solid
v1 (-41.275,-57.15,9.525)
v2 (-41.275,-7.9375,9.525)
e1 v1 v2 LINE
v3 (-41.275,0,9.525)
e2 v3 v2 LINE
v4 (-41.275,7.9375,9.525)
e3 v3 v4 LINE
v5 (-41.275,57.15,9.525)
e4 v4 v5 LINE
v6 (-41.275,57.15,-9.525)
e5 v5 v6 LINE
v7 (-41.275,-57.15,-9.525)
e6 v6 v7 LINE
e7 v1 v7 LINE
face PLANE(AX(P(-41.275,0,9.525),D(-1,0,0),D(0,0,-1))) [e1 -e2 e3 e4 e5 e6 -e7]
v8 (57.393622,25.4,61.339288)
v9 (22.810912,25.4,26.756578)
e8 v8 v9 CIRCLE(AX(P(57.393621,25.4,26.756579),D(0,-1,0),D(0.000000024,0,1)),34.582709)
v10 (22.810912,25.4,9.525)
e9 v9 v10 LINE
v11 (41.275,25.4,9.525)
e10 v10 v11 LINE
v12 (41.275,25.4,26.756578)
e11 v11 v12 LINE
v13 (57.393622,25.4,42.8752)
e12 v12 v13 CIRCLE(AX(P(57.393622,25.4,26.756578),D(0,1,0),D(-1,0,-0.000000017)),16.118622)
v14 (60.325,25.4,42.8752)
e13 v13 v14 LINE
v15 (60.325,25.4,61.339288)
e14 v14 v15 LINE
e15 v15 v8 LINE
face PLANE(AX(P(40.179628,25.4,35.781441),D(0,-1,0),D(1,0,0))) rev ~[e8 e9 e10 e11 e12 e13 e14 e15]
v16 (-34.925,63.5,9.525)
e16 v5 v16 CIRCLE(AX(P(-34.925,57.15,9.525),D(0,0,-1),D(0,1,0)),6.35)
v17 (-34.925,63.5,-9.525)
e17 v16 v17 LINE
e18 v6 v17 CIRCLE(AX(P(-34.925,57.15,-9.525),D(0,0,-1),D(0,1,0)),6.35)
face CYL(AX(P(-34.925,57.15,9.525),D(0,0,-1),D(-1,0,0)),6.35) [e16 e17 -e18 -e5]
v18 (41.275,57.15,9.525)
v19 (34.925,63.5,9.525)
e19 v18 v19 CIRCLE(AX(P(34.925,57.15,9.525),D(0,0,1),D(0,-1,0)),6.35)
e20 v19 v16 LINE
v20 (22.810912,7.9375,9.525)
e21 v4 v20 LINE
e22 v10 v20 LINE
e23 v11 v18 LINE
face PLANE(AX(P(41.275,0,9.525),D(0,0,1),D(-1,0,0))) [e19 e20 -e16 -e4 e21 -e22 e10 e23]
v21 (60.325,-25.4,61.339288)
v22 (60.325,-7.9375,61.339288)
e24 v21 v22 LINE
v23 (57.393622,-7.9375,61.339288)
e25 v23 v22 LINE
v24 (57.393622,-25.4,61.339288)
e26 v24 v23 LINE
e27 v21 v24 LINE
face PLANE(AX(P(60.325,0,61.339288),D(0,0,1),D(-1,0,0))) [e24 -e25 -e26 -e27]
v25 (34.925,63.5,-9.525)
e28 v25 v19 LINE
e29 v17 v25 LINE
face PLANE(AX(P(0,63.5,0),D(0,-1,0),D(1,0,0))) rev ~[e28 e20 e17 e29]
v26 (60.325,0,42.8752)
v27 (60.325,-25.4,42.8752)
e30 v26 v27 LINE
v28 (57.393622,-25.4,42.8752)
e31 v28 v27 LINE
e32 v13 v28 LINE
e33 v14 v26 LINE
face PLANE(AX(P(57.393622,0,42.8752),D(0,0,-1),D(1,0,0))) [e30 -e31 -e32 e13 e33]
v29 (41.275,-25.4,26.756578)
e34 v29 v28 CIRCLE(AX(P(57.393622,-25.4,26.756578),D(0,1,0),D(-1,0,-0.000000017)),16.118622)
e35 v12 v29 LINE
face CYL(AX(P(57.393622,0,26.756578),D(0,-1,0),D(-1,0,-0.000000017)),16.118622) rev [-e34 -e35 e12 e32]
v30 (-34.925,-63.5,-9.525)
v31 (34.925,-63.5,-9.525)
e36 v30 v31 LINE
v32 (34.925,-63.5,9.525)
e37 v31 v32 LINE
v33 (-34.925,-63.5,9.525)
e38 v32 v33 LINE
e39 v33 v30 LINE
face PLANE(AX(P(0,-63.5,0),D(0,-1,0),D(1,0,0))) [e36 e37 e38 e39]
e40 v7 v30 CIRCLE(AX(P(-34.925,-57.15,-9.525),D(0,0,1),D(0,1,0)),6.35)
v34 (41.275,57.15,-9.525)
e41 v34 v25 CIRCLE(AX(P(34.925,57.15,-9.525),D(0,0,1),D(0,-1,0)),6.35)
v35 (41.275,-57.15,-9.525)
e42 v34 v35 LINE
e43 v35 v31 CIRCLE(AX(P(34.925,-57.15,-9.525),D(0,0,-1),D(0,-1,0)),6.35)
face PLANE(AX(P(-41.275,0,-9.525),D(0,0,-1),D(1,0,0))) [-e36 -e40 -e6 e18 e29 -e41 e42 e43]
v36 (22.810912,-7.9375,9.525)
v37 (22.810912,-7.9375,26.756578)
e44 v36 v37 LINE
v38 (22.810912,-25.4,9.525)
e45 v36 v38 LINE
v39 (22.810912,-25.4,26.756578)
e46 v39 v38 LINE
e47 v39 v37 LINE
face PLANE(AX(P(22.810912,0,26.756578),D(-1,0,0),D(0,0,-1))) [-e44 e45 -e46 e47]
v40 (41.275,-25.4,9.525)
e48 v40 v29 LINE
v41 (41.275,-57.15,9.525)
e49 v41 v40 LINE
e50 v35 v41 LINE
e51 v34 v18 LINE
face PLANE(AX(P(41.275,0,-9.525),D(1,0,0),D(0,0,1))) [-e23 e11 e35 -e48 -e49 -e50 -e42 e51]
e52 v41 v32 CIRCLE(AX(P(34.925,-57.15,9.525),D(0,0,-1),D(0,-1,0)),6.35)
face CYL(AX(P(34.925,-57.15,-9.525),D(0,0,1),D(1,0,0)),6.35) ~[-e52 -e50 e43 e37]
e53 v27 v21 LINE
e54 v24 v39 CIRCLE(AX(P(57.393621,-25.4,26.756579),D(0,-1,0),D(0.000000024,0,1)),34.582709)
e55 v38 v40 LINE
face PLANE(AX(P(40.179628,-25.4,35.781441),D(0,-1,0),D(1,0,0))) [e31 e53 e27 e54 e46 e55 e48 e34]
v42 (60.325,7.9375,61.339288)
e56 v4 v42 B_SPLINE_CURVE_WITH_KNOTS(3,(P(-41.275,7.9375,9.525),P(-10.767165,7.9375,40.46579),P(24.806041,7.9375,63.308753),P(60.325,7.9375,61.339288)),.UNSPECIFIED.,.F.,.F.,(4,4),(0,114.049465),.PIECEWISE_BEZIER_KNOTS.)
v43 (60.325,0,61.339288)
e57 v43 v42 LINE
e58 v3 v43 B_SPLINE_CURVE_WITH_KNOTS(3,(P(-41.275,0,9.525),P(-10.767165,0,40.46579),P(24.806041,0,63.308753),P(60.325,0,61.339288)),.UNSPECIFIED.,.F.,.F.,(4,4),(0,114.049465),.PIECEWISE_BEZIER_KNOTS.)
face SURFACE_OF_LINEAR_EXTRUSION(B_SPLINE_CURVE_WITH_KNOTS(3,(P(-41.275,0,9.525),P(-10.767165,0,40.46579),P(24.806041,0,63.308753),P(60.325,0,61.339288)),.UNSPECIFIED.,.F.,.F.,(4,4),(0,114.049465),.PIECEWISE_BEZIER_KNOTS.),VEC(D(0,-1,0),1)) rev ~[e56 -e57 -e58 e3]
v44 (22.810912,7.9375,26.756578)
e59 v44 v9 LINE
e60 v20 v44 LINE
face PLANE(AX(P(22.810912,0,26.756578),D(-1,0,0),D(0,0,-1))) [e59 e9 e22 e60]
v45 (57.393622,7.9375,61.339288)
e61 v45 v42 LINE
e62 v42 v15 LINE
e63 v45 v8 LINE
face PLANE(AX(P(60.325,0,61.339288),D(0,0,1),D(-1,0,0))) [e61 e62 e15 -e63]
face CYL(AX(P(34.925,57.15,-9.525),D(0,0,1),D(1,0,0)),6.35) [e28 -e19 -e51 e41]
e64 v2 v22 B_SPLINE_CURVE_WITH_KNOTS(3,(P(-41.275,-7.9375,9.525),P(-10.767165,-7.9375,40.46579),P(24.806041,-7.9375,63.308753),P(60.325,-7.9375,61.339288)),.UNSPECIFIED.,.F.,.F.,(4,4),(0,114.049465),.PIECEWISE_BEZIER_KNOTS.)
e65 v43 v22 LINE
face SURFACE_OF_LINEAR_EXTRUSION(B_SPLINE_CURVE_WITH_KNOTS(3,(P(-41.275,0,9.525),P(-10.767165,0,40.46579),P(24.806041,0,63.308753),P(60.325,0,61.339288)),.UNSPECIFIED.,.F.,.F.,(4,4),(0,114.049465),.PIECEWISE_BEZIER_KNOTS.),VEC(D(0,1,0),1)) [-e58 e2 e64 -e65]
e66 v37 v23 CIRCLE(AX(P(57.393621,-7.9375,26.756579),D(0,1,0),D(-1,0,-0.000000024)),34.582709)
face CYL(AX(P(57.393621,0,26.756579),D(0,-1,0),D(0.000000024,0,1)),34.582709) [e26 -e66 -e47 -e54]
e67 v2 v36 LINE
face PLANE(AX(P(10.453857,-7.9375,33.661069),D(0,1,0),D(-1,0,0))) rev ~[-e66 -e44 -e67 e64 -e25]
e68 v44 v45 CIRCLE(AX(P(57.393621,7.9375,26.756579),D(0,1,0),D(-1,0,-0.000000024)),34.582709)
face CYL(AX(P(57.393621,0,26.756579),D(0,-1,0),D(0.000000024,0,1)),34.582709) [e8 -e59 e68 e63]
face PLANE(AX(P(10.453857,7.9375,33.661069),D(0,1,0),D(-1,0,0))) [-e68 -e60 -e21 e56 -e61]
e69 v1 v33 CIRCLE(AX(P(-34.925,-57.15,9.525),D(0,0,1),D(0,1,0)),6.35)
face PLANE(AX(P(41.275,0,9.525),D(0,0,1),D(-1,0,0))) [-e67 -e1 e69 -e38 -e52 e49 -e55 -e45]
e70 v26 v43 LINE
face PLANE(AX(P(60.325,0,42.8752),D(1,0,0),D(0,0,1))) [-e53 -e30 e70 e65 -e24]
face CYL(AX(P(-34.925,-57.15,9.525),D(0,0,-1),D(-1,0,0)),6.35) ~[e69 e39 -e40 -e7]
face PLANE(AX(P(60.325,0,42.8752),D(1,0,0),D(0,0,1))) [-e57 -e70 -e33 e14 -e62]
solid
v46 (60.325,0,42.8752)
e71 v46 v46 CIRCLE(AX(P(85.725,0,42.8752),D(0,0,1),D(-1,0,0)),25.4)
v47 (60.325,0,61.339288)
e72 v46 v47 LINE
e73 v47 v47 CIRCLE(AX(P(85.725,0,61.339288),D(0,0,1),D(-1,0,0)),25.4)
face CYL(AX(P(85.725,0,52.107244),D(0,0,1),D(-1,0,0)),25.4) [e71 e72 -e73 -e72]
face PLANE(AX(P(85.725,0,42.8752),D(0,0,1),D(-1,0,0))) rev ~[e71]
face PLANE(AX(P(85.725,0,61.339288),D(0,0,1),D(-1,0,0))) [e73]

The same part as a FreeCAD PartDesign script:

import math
import FreeCAD as App
import Part
import Sketcher
from FreeCAD import Vector
Q = App.Units.Quantity


def edges_at(feature, points):
    """Names of the edges that pass closest to the given points."""
    edges = feature.Shape.Edges
    near = lambda p: min(range(len(edges)), key=lambda i: edges[i].distToShape(Part.Vertex(*p))[0])
    return sorted({f"Edge{near(p) + 1}" for p in points})

doc = App.newDocument("Part")
params = doc.addObject("Spreadsheet::Sheet", "Params")
for row, (alias, value) in enumerate([
    ("sketch1_width", "3.25 in"),
    ("sketch1_height", "0.75 in"),
    ("pad1_length", "5 in"),
    ("pad2_length", "2 in"),
    ("pad3_length", "0.625 in"),
    ("sketch4_width", "1 in"),
    ("revolution_angle", "360 deg"),
    ("fillet_radius", "0.25 in"),
], start=1):
    params.set(f"A{row}", alias)
    params.set(f"B{row}", "=" + value)
    params.setAlias(f"B{row}", alias)

body = doc.addObject("PartDesign::Body", "Body")
body.AllowCompound = True

# Sketch on XZ plane
sketch1 = doc.addObject("Sketcher::SketchObject", "Sketch")
body.addObject(sketch1)
sketch1.AttachmentSupport = (doc.XZ_Plane, [""])
sketch1.MapMode = "FlatFace"
sketch1.addGeometry([
    Part.LineSegment(Vector(-41, 10, 0), Vector(-41, -10, 0)),
    Part.LineSegment(Vector(-41, -10, 0), Vector(41, -10, 0)),
    Part.LineSegment(Vector(41, -10, 0), Vector(41, 10, 0)),
    Part.LineSegment(Vector(41, 10, 0), Vector(-41, 10, 0)),
], False)
sketch1.addConstraint([
    Sketcher.Constraint("Coincident", 0, 2, 1, 1),
    Sketcher.Constraint("Coincident", 1, 2, 2, 1),
    Sketcher.Constraint("Coincident", 2, 2, 3, 1),
    Sketcher.Constraint("Coincident", 3, 2, 0, 1),
    Sketcher.Constraint("Vertical", 0),
    Sketcher.Constraint("Horizontal", 1),
    Sketcher.Constraint("Vertical", 2),
    Sketcher.Constraint("Horizontal", 3),
    Sketcher.Constraint("Symmetric", 0, 2, 2, 2, -1, 1),
    Sketcher.Constraint("DistanceX", 1, 1, 1, 2, Q("3.25 in")),
    Sketcher.Constraint("DistanceY", 0, 2, 0, 1, Q("0.75 in")),
])
sketch1.setExpression("Constraints[9]", "Params.sketch1_width")
sketch1.setExpression("Constraints[10]", "Params.sketch1_height")
pad1 = doc.addObject("PartDesign::Pad", "Pad")
body.addObject(pad1)
pad1.Profile = sketch1
pad1.setExpression("Length", "Params.pad1_length")
pad1.Midplane = True

# Sketch on XZ plane
sketch2 = doc.addObject("Sketcher::SketchObject", "Sketch001")
body.addObject(sketch2)
sketch2.AttachmentSupport = (doc.XZ_Plane, [""])
sketch2.MapMode = "FlatFace"
sketch2.addGeometry([
    Part.LineSegment(Vector(22.8, 26.8, 0), Vector(22.8, 9.5, 0)),  # 0
    Part.LineSegment(Vector(22.8, 9.5, 0), Vector(41.3, 9.5, 0)),  # 1
    Part.LineSegment(Vector(41.3, 9.5, 0), Vector(41.3, 26.8, 0)),  # 2
    Part.ArcOfCircle(Part.Circle(Vector(57.4, 26.8, 0), Vector(0, 0, 1), 16.1), math.radians(90), math.radians(180)),  # 3
    Part.LineSegment(Vector(57.4, 42.9, 0), Vector(60.3, 42.9, 0)),  # 4
    Part.LineSegment(Vector(60.3, 42.9, 0), Vector(60.3, 61.3, 0)),  # 5
    Part.LineSegment(Vector(60.3, 61.3, 0), Vector(57.4, 61.3, 0)),  # 6
    Part.ArcOfCircle(Part.Circle(Vector(57.4, 26.8, 0), Vector(0, 0, 1), 34.6), math.radians(90), math.radians(180)),  # 7
], False)
sketch2.addConstraint([
    Sketcher.Constraint("Coincident", 0, 2, 1, 1),
    Sketcher.Constraint("Coincident", 1, 2, 2, 1),
    Sketcher.Constraint("Tangent", 2, 2, 3, 2),
    Sketcher.Constraint("Tangent", 3, 1, 4, 1),
    Sketcher.Constraint("Coincident", 4, 2, 5, 1),
    Sketcher.Constraint("Coincident", 5, 2, 6, 1),
    Sketcher.Constraint("Tangent", 6, 2, 7, 1),
    Sketcher.Constraint("Tangent", 7, 2, 0, 1),
    Sketcher.Constraint("Vertical", 0),
    Sketcher.Constraint("Horizontal", 1),
    Sketcher.Constraint("Vertical", 2),
    Sketcher.Constraint("Horizontal", 4),
    Sketcher.Constraint("Vertical", 5),
    Sketcher.Constraint("Horizontal", 6),
    Sketcher.Constraint("Coincident", 7, 3, 3, 3),
    Sketcher.Constraint("DistanceX", 2, 2, 4, 2, Q("0.75 in")),
    Sketcher.Constraint("DistanceY", -1, 1, 0, 2, Q("0.375 in")),
    Sketcher.Constraint("DistanceX", -1, 1, 1, 2, Q("1.625 in")),
    Sketcher.Constraint("DistanceY", -1, 1, 3, 1, Q("1.688 in")),
    Sketcher.Constraint("Radius", 3, 16.118622),
    Sketcher.Constraint("Radius", 7, 34.582709),
])
pad2 = doc.addObject("PartDesign::Pad", "Pad001")
body.addObject(pad2)
pad2.Profile = sketch2
pad2.setExpression("Length", "Params.pad2_length")
pad2.Midplane = True

# Sketch on XZ plane
sketch3 = doc.addObject("Sketcher::SketchObject", "Sketch002")
body.addObject(sketch3)
sketch3.AttachmentSupport = (doc.XZ_Plane, [""])
sketch3.MapMode = "FlatFace"
sketch3.addGeometry([
    Part.BSplineCurve([Vector(-41.275, 9.525, 0), Vector(-10.767165, 40.46579, 0), Vector(24.806041, 63.308753, 0), Vector(60.325, 61.339288, 0)], [4, 4], [0, 114.049465], False, 3, [1, 1, 1, 1], False),  # 0
    Part.LineSegment(Vector(-41.275, 9.525, 0), Vector(22.810912, 9.525, 0)),  # 1
    Part.LineSegment(Vector(22.810912, 9.525, 0), Vector(22.810912, 26.756578, 0)),  # 2
    Part.ArcOfCircle(Part.Circle(Vector(57.393621, 26.756579, 0), Vector(0, 0, 1), 34.582709), math.radians(89.999999), math.radians(180.000001)),  # 3
    Part.LineSegment(Vector(57.393622, 61.339288, 0), Vector(60.325, 61.339288, 0)),  # 4
], False)
sketch3.addConstraint([
    Sketcher.Constraint("Block", 0),
    Sketcher.Constraint("Coincident", 0, 1, 1, 1),
    Sketcher.Constraint("Coincident", 1, 2, 2, 1),
    Sketcher.Constraint("Tangent", 2, 2, 3, 2),
    Sketcher.Constraint("Tangent", 3, 1, 4, 1),
    Sketcher.Constraint("Coincident", 4, 2, 0, 2),
    Sketcher.Constraint("Horizontal", 1),
    Sketcher.Constraint("Vertical", 2),
    Sketcher.Constraint("Horizontal", 4),
    Sketcher.Constraint("Radius", 3, 34.582709),
    Sketcher.Constraint("DistanceX", 1, 1, 1, 2, 64.085912),
])
pad3 = doc.addObject("PartDesign::Pad", "Pad002")
body.addObject(pad3)
pad3.Profile = sketch3
pad3.setExpression("Length", "Params.pad3_length")
pad3.Midplane = True

# Sketch on XZ plane
sketch4 = doc.addObject("Sketcher::SketchObject", "Sketch003")
body.addObject(sketch4)
sketch4.AttachmentSupport = (doc.XZ_Plane, [""])
sketch4.MapMode = "FlatFace"
sketch4.addGeometry([
    Part.LineSegment(Vector(60, 61, 0), Vector(60, 43, 0)),
    Part.LineSegment(Vector(60, 43, 0), Vector(86, 43, 0)),
    Part.LineSegment(Vector(86, 43, 0), Vector(86, 61, 0)),
    Part.LineSegment(Vector(86, 61, 0), Vector(60, 61, 0)),
], False)
sketch4.addGeometry(Part.LineSegment(Vector(86, 43, 0), Vector(86, 61, 0)), True)  # axis
sketch4.addConstraint([
    Sketcher.Constraint("Coincident", 0, 2, 1, 1),
    Sketcher.Constraint("Coincident", 1, 2, 2, 1),
    Sketcher.Constraint("Coincident", 2, 2, 3, 1),
    Sketcher.Constraint("Coincident", 3, 2, 0, 1),
    Sketcher.Constraint("Vertical", 0),
    Sketcher.Constraint("Horizontal", 1),
    Sketcher.Constraint("Vertical", 2),
    Sketcher.Constraint("Horizontal", 3),
    Sketcher.Constraint("Vertical", 4),
    Sketcher.Constraint("Coincident", 4, 1, 1, 2),
    Sketcher.Constraint("Horizontal", 3, 2, 4, 2),
    Sketcher.Constraint("DistanceX", 1, 1, 1, 2, Q("1 in")),
    Sketcher.Constraint("DistanceX", -1, 1, 0, 2, Q("2.375 in")),
    Sketcher.Constraint("DistanceY", -1, 1, 0, 2, Q("1.688 in")),
    Sketcher.Constraint("DistanceY", 0, 2, 0, 1, 18.464088),
])
sketch4.setExpression("Constraints[11]", "Params.sketch4_width")
revolution = doc.addObject("PartDesign::Revolution", "Revolution")
body.addObject(revolution)
revolution.Profile = sketch4
revolution.ReferenceAxis = (sketch4, ["Axis0"])
revolution.setExpression("Angle", "Params.revolution_angle")
doc.recompute()

fillet = doc.addObject("PartDesign::Fillet", "Fillet")
body.addObject(fillet)
fillet.Base = (revolution, edges_at(revolution, [
    (41.275, -63.5, 0),
    (-41.275, -63.5, 0),
    (-41.275, 63.5, 0),
    (41.275, 63.5, 0),
]))
fillet.setExpression("Radius", "Params.fillet_radius")

doc.recompute()
